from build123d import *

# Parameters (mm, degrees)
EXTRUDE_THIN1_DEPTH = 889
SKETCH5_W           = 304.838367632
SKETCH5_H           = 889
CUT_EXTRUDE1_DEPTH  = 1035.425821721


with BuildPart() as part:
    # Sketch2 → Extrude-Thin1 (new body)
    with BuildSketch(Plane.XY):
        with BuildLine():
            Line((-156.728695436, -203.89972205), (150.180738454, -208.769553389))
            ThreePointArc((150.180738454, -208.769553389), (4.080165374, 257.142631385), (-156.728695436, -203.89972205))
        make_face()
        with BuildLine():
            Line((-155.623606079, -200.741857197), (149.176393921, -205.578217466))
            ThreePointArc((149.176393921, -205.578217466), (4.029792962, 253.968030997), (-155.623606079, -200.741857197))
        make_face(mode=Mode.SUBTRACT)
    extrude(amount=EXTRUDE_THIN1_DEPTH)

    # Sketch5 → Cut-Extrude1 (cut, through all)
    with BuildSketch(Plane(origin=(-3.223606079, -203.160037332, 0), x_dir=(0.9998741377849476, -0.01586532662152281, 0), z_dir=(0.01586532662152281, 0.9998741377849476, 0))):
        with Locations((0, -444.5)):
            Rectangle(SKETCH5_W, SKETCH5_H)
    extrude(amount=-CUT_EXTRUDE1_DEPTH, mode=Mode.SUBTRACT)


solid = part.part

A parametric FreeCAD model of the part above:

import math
import FreeCAD as App
import Part
import Sketcher

V = App.Vector
Q = App.Units.Quantity

doc = App.newDocument("Part")
params = doc.addObject("Spreadsheet::Sheet", "Params")
for row, (alias, value) in enumerate([
    ("sketch1_radius", "10 in"),
    ("sketch1_radius2", "10.125 in"),
    ("pad1_length", "35 in"),
    ("sketch2_height", "35 in"),
], start=1):
    params.set(f"A{row}", alias)
    params.set(f"B{row}", "=" + value)
    params.setAlias(f"B{row}", alias)

body = doc.addObject("PartDesign::Body", "Body")

# Sketch on XY plane
sketch1 = body.newObject("Sketcher::SketchObject", "Sketch")
sketch1.AttachmentSupport = (doc.getObject("XY_Plane"), [""])
sketch1.MapMode = "FlatFace"
sketch1.addGeometry(Part.LineSegment(V(-157, -204, 0), V(150, -209, 0)), False)
sketch1.addGeometry(Part.ArcOfCircle(Part.Circle(V(0, 0, 0), V(0, 0, 1), 257), math.radians(-54), math.radians(232)), False)
sketch1.addGeometry(Part.LineSegment(V(149, -206, 0), V(-156, -201, 0)), False)
sketch1.addGeometry(Part.ArcOfCircle(Part.Circle(V(0, 0, 0), V(0, 0, 1), 254), math.radians(-54), math.radians(232)), False)
sketch1.addConstraint(Sketcher.Constraint("Coincident", 0, 1, 1, 2))
sketch1.addConstraint(Sketcher.Constraint("Coincident", 1, 1, 0, 2))
sketch1.addConstraint(Sketcher.Constraint("Coincident", 2, 1, 3, 1))
sketch1.addConstraint(Sketcher.Constraint("Coincident", 3, 2, 2, 2))
sketch1.addConstraint(Sketcher.Constraint("Coincident", 1, 3, -1, 1))
sketch1.addConstraint(Sketcher.Constraint("Coincident", 3, 3, -1, 1))
sketch1.addConstraint(Sketcher.Constraint("Parallel", 0, 2))
sketch1.addConstraint(Sketcher.Constraint("Radius", 3, Q("10 in")))
sketch1.addConstraint(Sketcher.Constraint("Radius", 1, Q("10.125 in")))
sketch1.addConstraint(Sketcher.Constraint("DistanceX", 3, 2, 2, 1, Q("12 in")))
sketch1.addConstraint(Sketcher.Constraint("DistanceX", -1, 1, 1, 1, 150.180738))
sketch1.addConstraint(Sketcher.Constraint("DistanceY", 1, 1, 0, 1, 4.869831))
sketch1.setExpression("Constraints[7]", "Params.sketch1_radius")
sketch1.setExpression("Constraints[8]", "Params.sketch1_radius2")
pad1 = body.newObject("PartDesign::Pad", "Pad")
pad1.Profile = sketch1
pad1.setExpression("Length", "Params.pad1_length")

# Sketch on an angled plane
sketch2 = body.newObject("Sketcher::SketchObject", "Sketch001")
sketch2.Placement = App.Placement(V(-3.223606, -203.160037, 0), App.Rotation(V(0.999874138, -0.015865327, 0), V(0, 0, -1), V(0.015865327, 0.999874138, 0), "ZXY"))
sketch2.addGeometry(Part.LineSegment(V(-152, 0, 0), V(-152, -889, 0)), False)
sketch2.addGeometry(Part.LineSegment(V(-152, -889, 0), V(152, -889, 0)), False)
sketch2.addGeometry(Part.LineSegment(V(152, -889, 0), V(152, 0, 0)), False)
sketch2.addGeometry(Part.LineSegment(V(152, 0, 0), V(-152, 0, 0)), False)
sketch2.addConstraint(Sketcher.Constraint("Coincident", 0, 2, 1, 1))
sketch2.addConstraint(Sketcher.Constraint("Coincident", 1, 2, 2, 1))
sketch2.addConstraint(Sketcher.Constraint("Coincident", 2, 2, 3, 1))
sketch2.addConstraint(Sketcher.Constraint("Coincident", 3, 2, 0, 1))
sketch2.addConstraint(Sketcher.Constraint("Vertical", 0))
sketch2.addConstraint(Sketcher.Constraint("Horizontal", 1))
sketch2.addConstraint(Sketcher.Constraint("Vertical", 2))
sketch2.addConstraint(Sketcher.Constraint("Horizontal", 3))
sketch2.addConstraint(Sketcher.Constraint("Symmetric", 2, 2, 3, 2, -1, 1))
sketch2.addConstraint(Sketcher.Constraint("DistanceY", 0, 2, 0, 1, Q("35 in")))
sketch2.addConstraint(Sketcher.Constraint("DistanceX", 1, 1, 1, 2, 304.838368))
sketch2.setExpression("Constraints[9]", "Params.sketch2_height")
pocket1 = body.newObject("PartDesign::Pocket", "Pocket")
pocket1.Profile = sketch2
pocket1.Type = "ThroughAll"

doc.recompute()
